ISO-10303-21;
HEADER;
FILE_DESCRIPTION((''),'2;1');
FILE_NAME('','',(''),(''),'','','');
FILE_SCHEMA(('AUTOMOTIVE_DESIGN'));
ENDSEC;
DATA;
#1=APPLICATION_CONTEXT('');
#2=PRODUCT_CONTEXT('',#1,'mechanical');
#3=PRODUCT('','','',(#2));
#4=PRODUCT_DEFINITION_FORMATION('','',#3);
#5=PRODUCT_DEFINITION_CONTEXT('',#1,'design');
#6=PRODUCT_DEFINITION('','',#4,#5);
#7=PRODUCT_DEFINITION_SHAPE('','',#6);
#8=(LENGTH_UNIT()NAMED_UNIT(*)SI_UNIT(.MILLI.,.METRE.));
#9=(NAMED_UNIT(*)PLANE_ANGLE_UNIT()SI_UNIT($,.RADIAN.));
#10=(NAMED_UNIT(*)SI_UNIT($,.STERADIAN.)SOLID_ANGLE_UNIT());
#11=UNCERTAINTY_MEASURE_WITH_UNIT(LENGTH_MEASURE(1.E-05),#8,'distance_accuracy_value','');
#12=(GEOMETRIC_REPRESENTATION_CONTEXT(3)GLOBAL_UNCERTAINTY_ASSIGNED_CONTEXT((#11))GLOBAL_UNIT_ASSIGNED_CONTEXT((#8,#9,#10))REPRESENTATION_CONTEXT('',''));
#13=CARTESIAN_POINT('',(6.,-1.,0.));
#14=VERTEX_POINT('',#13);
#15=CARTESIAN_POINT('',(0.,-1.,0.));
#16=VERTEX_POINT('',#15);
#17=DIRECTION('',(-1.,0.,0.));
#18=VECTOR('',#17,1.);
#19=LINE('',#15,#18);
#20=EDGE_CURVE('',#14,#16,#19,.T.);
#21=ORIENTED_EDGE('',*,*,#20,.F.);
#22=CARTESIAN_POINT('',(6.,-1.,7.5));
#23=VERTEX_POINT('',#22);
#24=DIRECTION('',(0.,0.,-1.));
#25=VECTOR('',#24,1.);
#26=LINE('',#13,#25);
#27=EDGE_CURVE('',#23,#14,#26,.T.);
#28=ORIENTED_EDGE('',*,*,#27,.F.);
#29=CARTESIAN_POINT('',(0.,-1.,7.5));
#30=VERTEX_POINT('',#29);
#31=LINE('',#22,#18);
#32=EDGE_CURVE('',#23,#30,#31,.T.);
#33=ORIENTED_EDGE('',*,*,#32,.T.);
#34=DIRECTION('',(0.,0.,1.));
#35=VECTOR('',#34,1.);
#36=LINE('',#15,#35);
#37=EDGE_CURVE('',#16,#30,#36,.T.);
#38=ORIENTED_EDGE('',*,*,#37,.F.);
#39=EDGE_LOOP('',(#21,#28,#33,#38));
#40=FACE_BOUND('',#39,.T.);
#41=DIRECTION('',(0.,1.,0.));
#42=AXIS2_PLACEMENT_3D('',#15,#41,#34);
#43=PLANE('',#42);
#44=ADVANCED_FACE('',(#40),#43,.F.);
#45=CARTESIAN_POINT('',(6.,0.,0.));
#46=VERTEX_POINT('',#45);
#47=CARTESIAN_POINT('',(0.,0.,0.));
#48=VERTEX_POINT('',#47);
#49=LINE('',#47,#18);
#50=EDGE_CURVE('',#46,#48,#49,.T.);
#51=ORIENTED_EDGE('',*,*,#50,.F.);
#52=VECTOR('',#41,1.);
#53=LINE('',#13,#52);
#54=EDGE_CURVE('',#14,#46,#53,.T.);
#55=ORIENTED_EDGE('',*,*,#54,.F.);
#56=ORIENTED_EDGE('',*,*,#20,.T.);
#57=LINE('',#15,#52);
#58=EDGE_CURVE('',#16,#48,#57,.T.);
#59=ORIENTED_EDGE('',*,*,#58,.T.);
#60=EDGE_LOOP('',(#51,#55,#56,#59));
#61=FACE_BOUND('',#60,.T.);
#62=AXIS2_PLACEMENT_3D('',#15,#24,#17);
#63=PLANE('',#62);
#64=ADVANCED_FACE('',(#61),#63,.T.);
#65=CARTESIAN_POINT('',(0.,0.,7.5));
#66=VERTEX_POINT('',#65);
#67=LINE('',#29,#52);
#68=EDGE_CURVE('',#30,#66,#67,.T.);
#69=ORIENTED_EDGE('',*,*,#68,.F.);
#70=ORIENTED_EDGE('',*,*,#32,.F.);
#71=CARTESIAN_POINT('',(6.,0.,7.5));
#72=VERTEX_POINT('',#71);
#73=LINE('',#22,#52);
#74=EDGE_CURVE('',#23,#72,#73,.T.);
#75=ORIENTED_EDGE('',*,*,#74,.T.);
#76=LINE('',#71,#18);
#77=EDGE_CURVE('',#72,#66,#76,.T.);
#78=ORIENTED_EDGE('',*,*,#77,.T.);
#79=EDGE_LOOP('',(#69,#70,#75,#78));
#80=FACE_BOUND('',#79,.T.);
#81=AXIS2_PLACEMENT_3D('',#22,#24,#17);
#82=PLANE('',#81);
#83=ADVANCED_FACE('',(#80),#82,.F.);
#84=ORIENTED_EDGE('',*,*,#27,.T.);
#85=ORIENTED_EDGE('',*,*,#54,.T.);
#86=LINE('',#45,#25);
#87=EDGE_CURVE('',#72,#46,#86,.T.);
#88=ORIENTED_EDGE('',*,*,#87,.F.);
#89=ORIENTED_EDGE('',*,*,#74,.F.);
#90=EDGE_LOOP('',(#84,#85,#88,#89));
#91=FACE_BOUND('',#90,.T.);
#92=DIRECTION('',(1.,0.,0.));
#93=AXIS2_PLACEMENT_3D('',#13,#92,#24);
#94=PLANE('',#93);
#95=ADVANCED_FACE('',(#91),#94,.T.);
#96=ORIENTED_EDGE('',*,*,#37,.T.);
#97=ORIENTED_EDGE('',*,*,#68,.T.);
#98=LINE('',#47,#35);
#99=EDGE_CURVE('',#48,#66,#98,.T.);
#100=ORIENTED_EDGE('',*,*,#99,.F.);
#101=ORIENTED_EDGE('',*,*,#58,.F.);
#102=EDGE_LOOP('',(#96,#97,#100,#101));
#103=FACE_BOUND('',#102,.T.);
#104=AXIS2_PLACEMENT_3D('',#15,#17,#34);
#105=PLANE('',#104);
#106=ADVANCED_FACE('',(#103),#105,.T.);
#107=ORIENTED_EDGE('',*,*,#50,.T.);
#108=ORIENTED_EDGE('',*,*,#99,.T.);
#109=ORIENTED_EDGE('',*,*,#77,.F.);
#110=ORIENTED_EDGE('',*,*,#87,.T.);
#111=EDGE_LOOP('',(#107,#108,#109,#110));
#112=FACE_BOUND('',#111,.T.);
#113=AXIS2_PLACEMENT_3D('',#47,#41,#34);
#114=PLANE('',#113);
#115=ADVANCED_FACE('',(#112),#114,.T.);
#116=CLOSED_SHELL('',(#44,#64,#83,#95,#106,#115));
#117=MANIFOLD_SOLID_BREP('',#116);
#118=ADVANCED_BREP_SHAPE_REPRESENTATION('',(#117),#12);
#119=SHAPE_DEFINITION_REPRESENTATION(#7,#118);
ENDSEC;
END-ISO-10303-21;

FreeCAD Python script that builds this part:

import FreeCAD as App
import Part
import Sketcher
Q = App.Units.Quantity

doc = App.newDocument("Part")
body = doc.addObject("PartDesign::Body", "Body")

# Sketch on XZ plane
sketch1 = doc.addObject("Sketcher::SketchObject", "Sketch")
body.addObject(sketch1)
sketch1.AttachmentSupport = (doc.XZ_Plane, [""])
sketch1.MapMode = "FlatFace"
sketch1.addGeometry([
    Part.LineSegment(App.Vector(0, 0, 0), App.Vector(0, 13, 0)),
    Part.LineSegment(App.Vector(0, 13, 0), App.Vector(229, 13, 0)),
    Part.LineSegment(App.Vector(229, 13, 0), App.Vector(229, 0, 0)),
    Part.LineSegment(App.Vector(229, 0, 0), App.Vector(0, 0, 0)),
], False)
sketch1.addConstraint([
    Sketcher.Constraint("Coincident", 0, 2, 1, 1),
    Sketcher.Constraint("Coincident", 1, 2, 2, 1),
    Sketcher.Constraint("Coincident", 2, 2, 3, 1),
    Sketcher.Constraint("Coincident", 3, 2, 0, 1),
    Sketcher.Constraint("Vertical", 0),
    Sketcher.Constraint("Horizontal", 1),
    Sketcher.Constraint("Vertical", 2),
    Sketcher.Constraint("Horizontal", 3),
    Sketcher.Constraint("Coincident", 3, 2, -1, 1),
    Sketcher.Constraint("DistanceX", 1, 1, 1, 2, Q("229 mm")),
    Sketcher.Constraint("DistanceY", 0, 1, 0, 2, Q("12.7 mm")),
])
pad1 = doc.addObject("PartDesign::Pad", "Pad")
body.addObject(pad1)
pad1.Profile = sketch1
pad1.Length = 1

# Sketch on XZ plane
sketch2 = doc.addObject("Sketcher::SketchObject", "Sketch001")
body.addObject(sketch2)
sketch2.AttachmentSupport = (doc.XZ_Plane, [""])
sketch2.MapMode = "FlatFace"
sketch2.addGeometry([
    Part.LineSegment(App.Vector(229, 13, 0), App.Vector(229, 0, 0)),  # 0
    Part.LineSegment(App.Vector(229, 0, 0), App.Vector(6, 0, 0)),  # 1
    Part.LineSegment(App.Vector(6, 0, 0), App.Vector(6, 8, 0)),  # 2
    Part.LineSegment(App.Vector(6, 8, 0), App.Vector(0, 8, 0)),  # 3
    Part.LineSegment(App.Vector(0, 8, 0), App.Vector(0, 13, 0)),  # 4
    Part.LineSegment(App.Vector(0, 13, 0), App.Vector(229, 13, 0)),  # 5
], False)
sketch2.addConstraint([
    Sketcher.Constraint("Coincident", 0, 2, 1, 1),
    Sketcher.Constraint("Coincident", 1, 2, 2, 1),
    Sketcher.Constraint("Coincident", 2, 2, 3, 1),
    Sketcher.Constraint("Coincident", 3, 2, 4, 1),
    Sketcher.Constraint("Coincident", 4, 2, 5, 1),
    Sketcher.Constraint("Coincident", 5, 2, 0, 1),
    Sketcher.Constraint("Vertical", 0),
    Sketcher.Constraint("Horizontal", 1),
    Sketcher.Constraint("Vertical", 2),
    Sketcher.Constraint("Horizontal", 3),
    Sketcher.Constraint("Vertical", 4),
    Sketcher.Constraint("Horizontal", 5),
    Sketcher.Constraint("PointOnObject", 0, 2, -1),
    Sketcher.Constraint("PointOnObject", 3, 2, -2),
    Sketcher.Constraint("DistanceX", 1, 2, 1, 1, Q("223 mm")),
    Sketcher.Constraint("DistanceX", 3, 2, 3, 1, Q("6 mm")),
    Sketcher.Constraint("DistanceY", 0, 2, 0, 1, Q("12.7 mm")),
    Sketcher.Constraint("DistanceY", 2, 1, 2, 2, Q("7.5 mm")),
])
pocket1 = doc.addObject("PartDesign::Pocket", "Pocket")
body.addObject(pocket1)
pocket1.Profile = sketch2
pocket1.Type = "ThroughAll"
pocket1.Reversed = True

doc.recompute()
